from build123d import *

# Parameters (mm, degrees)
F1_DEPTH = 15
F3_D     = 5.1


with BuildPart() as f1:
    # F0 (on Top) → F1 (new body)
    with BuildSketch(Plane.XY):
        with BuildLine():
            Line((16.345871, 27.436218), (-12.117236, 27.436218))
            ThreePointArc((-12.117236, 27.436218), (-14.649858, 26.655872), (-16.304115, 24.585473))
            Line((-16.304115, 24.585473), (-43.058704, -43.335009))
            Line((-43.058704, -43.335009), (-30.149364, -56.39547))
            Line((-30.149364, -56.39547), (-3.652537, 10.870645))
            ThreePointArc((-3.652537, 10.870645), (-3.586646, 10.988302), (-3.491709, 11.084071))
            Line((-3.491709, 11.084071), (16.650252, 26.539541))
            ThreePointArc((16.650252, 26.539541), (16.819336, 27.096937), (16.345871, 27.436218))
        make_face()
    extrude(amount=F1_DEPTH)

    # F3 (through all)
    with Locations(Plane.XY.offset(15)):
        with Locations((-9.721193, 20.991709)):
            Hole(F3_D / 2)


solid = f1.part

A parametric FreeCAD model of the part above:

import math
import FreeCAD as App
import Part
import Sketcher
Q = App.Units.Quantity

doc = App.newDocument("Part")
params = doc.addObject("Spreadsheet::Sheet", "Params")
for row, (alias, value) in enumerate([
    ("sketch1_radius", "4.499999 mm"),
    ("sketch1_radius2", "0.5 mm"),
    ("sketch1_length", "72.999999 mm"),
    ("pad1_length", "15 mm"),
    ("sketch2_diameter", "5.1 mm"),
    ("hole_diameter", "5.1 mm"),
], start=1):
    params.set(f"A{row}", alias)
    params.set(f"B{row}", "=" + value)
    params.setAlias(f"B{row}", alias)

body = doc.addObject("PartDesign::Body", "Body")

sketch1 = body.newObject("Sketcher::SketchObject", "Sketch")
sketch1.AttachmentSupport = (doc.getObject("XY_Plane"), [""])
sketch1.MapMode = "FlatFace"
sketch1.addGeometry([
    Part.LineSegment(App.Vector(16.345871, 27.436218, 0), App.Vector(-12.117236, 27.436218, 0)),
    Part.ArcOfCircle(Part.Circle(App.Vector(-12.117236, 22.936219, 0), App.Vector(0, 0, 1), 4.499999), math.radians(89.999997), math.radians(158.500014)),
    Part.LineSegment(App.Vector(-16.304115, 24.585473, 0), App.Vector(-43.058704, -43.335009, 0)),
    Part.LineSegment(App.Vector(-43.058704, -43.335009, 0), App.Vector(-30.149364, -56.39547, 0)),
    Part.LineSegment(App.Vector(-30.149364, -56.39547, 0), App.Vector(-3.652537, 10.870645, 0)),
    Part.ArcOfCircle(Part.Circle(App.Vector(-3.18733, 10.687396, 0), App.Vector(0, 0, 1), 0.499998), math.radians(127.499938), math.radians(158.500072)),
    Part.LineSegment(App.Vector(-3.491709, 11.084071, 0), App.Vector(16.650252, 26.539541, 0)),
    Part.ArcOfCircle(Part.Circle(App.Vector(16.34587, 26.936218, 0), App.Vector(0, 0, 1), 0.5), math.radians(-52.499906), math.radians(89.999926)),
], False)
sketch1.addConstraint([
    Sketcher.Constraint("Tangent", 0, 2, 1, 1),
    Sketcher.Constraint("Tangent", 1, 2, 2, 1),
    Sketcher.Constraint("Coincident", 2, 2, 3, 1),
    Sketcher.Constraint("Coincident", 3, 2, 4, 1),
    Sketcher.Constraint("Tangent", 4, 2, 5, 2),
    Sketcher.Constraint("Tangent", 5, 1, 6, 1),
    Sketcher.Constraint("Tangent", 6, 2, 7, 1),
    Sketcher.Constraint("Tangent", 7, 2, 0, 1),
    Sketcher.Constraint("Horizontal", 0),
    Sketcher.Constraint("Parallel", 2, 4),
    Sketcher.Constraint("Radius", 1, 4.499999),
    Sketcher.Constraint("Radius", 7, 0.5),
    Sketcher.Constraint("Distance", 2, 72.999999),
    Sketcher.Constraint("Angle", 2, Q("-111.5 deg")),
    Sketcher.Constraint("Angle", 6, Q("37.5 deg")),
    Sketcher.Constraint("Radius", 5, 0.499998),
    Sketcher.Constraint("DistanceX", 5, 3, 7, 3, 19.5332),
    Sketcher.Constraint("DistanceX", 1, 3, 4, 2, 8.464699),
    Sketcher.Constraint("DistanceY", -1, 1, 1, 3, 22.936219),
    Sketcher.Constraint("DistanceX", 5, 3, -1, 1, 3.18733),
    Sketcher.Constraint("DistanceY", 3, 2, -1, 1, 56.39547),
])
sketch1.setExpression("Constraints[10]", "Params.sketch1_radius")
sketch1.setExpression("Constraints[11]", "Params.sketch1_radius2")
sketch1.setExpression("Constraints[12]", "Params.sketch1_length")
pad1 = body.newObject("PartDesign::Pad", "Pad")
pad1.Profile = sketch1
pad1.setExpression("Length", "Params.pad1_length")

sketch2 = body.newObject("Sketcher::SketchObject", "Sketch001")
sketch2.AttachmentSupport = (doc.getObject("XY_Plane"), [""])
sketch2.MapMode = "FlatFace"
sketch2.AttachmentOffset = App.Placement(App.Vector(0, 0, 15), App.Rotation())
sketch2.addGeometry(Part.Circle(App.Vector(-9.721193, 20.991709, 0), App.Vector(0, 0, 1), 2.55), False)
sketch2.addConstraint([
    Sketcher.Constraint("Diameter", 0, 5.1),
    Sketcher.Constraint("DistanceY", -1, 1, 0, 3, 20.991709),
    Sketcher.Constraint("DistanceX", 0, 3, -1, 1, 9.721193),
])
sketch2.setExpression("Constraints[0]", "Params.sketch2_diameter")
doc.recompute()
hole = body.newObject("PartDesign::Hole", "Hole")
hole.Profile = sketch2
hole.ThreadType = "None"
hole.setExpression("Diameter", "Params.hole_diameter")
hole.DepthType = "ThroughAll"

doc.recompute()
